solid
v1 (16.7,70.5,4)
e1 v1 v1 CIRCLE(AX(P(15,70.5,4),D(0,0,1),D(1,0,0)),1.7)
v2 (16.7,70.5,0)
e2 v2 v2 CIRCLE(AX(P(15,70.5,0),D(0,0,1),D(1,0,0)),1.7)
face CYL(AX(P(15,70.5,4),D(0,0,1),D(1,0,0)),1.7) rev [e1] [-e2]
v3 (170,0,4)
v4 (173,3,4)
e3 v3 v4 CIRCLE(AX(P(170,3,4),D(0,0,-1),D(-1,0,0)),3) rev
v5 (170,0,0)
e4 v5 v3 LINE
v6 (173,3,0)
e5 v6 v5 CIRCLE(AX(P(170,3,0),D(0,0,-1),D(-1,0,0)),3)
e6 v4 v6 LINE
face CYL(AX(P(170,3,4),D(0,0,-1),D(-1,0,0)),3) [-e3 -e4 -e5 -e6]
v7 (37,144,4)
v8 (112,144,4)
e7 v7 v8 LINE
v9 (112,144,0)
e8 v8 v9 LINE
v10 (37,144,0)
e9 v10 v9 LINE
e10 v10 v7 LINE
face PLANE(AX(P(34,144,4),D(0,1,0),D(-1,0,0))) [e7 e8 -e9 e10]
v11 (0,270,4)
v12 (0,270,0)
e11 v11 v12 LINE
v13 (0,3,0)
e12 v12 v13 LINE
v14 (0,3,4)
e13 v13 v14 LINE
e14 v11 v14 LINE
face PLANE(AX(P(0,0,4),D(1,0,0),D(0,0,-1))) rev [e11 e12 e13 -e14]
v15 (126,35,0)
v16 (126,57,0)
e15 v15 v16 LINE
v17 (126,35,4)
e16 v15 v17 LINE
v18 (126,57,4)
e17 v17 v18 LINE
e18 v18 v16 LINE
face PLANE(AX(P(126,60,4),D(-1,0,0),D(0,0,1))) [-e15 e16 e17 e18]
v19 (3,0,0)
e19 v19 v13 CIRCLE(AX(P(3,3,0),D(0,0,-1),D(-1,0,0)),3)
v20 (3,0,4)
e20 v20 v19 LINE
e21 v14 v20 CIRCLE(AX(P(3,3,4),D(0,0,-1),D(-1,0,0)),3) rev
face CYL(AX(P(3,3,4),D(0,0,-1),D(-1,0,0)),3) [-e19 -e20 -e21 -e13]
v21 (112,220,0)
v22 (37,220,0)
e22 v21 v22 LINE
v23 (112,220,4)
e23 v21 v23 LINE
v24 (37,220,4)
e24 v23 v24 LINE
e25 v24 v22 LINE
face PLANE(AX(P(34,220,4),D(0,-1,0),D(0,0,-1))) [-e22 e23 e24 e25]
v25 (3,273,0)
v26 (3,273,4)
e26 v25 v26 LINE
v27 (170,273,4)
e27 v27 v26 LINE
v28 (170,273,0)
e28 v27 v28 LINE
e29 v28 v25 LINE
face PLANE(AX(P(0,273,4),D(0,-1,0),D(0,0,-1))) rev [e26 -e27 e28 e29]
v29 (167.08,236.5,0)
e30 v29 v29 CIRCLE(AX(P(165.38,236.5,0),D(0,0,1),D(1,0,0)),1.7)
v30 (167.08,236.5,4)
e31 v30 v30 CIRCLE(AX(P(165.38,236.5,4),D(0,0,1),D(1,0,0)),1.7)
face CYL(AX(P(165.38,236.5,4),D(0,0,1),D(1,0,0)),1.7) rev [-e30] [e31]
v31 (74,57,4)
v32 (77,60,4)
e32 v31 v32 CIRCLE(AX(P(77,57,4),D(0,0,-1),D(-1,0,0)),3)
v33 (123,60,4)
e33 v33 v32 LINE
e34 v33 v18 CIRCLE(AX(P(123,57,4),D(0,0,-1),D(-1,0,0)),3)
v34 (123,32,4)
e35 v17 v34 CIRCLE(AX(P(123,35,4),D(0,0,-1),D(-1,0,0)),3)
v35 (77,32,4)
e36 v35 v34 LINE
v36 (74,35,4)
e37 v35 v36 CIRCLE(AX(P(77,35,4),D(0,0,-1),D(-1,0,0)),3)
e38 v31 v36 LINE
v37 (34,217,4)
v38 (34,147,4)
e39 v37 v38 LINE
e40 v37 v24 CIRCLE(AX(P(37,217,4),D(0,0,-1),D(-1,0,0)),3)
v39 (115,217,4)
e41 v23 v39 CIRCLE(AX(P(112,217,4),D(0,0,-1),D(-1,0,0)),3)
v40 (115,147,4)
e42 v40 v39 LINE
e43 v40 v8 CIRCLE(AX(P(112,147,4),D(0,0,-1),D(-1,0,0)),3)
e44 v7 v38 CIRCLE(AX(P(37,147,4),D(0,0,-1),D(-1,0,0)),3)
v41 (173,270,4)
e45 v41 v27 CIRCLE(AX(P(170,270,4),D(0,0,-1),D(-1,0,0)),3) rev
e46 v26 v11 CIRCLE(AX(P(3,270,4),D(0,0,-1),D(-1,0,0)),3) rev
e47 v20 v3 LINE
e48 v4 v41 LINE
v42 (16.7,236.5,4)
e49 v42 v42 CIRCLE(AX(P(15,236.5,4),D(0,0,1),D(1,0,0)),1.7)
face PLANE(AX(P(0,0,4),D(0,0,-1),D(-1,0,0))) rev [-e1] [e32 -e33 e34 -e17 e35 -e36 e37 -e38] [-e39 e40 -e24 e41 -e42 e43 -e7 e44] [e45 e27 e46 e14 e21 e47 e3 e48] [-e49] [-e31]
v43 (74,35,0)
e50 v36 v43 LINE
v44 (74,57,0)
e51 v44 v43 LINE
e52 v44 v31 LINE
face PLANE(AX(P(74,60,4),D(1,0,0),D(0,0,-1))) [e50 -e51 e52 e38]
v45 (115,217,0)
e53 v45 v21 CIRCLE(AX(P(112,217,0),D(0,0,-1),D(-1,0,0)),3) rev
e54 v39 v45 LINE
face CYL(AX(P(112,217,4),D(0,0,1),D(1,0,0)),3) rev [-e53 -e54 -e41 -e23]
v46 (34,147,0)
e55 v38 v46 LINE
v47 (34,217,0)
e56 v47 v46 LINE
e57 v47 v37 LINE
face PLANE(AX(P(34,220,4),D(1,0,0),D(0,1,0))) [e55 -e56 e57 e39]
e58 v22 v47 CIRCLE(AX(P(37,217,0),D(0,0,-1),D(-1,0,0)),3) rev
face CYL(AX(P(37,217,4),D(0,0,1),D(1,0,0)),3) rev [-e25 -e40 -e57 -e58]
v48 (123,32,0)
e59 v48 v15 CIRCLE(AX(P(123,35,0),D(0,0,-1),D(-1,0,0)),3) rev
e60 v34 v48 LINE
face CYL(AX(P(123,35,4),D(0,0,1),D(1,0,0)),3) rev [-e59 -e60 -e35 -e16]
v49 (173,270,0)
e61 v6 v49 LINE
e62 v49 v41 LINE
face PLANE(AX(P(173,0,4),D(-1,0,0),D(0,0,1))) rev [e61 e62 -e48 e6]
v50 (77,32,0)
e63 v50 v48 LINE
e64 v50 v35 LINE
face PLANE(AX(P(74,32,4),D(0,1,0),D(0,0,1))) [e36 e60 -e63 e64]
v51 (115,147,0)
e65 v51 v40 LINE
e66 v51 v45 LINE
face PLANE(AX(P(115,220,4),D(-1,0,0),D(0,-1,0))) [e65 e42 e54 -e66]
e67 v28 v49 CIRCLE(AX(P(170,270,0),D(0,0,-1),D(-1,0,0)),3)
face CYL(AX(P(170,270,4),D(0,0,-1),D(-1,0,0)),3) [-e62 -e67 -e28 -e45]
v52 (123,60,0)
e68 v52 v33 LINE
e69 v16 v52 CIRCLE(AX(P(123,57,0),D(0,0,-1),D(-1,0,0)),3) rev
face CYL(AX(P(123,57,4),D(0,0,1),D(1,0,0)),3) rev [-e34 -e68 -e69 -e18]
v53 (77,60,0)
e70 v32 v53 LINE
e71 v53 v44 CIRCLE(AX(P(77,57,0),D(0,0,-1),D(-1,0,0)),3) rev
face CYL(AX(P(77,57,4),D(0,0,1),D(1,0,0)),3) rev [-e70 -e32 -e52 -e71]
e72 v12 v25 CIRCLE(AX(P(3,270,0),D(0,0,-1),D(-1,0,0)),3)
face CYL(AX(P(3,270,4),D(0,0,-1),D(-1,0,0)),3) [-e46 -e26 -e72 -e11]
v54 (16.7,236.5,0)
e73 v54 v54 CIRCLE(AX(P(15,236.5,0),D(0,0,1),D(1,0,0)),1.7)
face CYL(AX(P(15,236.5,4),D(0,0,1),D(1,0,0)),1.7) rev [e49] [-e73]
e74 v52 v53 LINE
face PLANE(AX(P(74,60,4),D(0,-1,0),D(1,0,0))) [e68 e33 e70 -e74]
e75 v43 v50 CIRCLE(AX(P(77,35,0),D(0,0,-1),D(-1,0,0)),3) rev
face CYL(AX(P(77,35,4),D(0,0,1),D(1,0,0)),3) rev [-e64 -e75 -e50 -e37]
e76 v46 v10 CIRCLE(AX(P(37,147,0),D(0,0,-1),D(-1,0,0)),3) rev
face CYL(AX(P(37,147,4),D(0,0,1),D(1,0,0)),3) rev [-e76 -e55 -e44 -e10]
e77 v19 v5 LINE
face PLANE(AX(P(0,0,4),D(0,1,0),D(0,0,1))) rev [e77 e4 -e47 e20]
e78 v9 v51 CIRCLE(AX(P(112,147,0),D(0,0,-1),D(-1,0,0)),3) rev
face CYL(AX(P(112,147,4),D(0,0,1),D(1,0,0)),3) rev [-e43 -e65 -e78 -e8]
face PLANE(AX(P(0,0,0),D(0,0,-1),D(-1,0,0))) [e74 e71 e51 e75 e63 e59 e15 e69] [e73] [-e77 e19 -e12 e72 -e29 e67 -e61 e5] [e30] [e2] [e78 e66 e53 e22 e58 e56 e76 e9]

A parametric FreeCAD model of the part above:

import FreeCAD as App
import Part
import Sketcher
from FreeCAD import Vector
Q = App.Units.Quantity


def edges_at(feature, points):
    """Names of the edges that pass closest to the given points."""
    edges = feature.Shape.Edges
    near = lambda p: min(range(len(edges)), key=lambda i: edges[i].distToShape(Part.Vertex(*p))[0])
    return sorted({f"Edge{near(p) + 1}" for p in points})


def add_polygon(sketch, points):
    """Adds a closed chain of lines whose ends are joined by coincident constraints."""
    first, n = sketch.GeometryCount, len(points)
    for a, b in zip(points, points[1:] + points[:1]):
        sketch.addGeometry(Part.LineSegment(App.Vector(*a, 0), App.Vector(*b, 0)), False)
    for i in range(n):
        sketch.addConstraint(Sketcher.Constraint("Coincident", first + i, 2, first + (i + 1) % n, 1))

doc = App.newDocument("Part")
body = doc.addObject("PartDesign::Body", "Body")

# Sketch on XY plane
sketch1 = doc.addObject("Sketcher::SketchObject", "Sketch")
body.addObject(sketch1)
sketch1.AttachmentSupport = (doc.XY_Plane, [""])
sketch1.MapMode = "FlatFace"
add_polygon(sketch1, [(0, 273), (0, 0), (173, 0), (173, 273)])  # lines 0-3
sketch1.addGeometry(Part.Circle(Vector(15, 70.5, 0), Vector(0, 0, 1), 1.5), False)  # 4
add_polygon(sketch1, [(126, 32), (74, 32), (74, 60), (126, 60)])  # lines 5-8
add_polygon(sketch1, [(115, 144), (34, 144), (34, 220), (115, 220)])  # lines 9-12
sketch1.addGeometry(Part.Circle(Vector(15, 236.5, 0), Vector(0, 0, 1), 1.5), False)  # 13
sketch1.addGeometry(Part.Circle(Vector(165.4, 236.5, 0), Vector(0, 0, 1), 1.5), False)  # 14
sketch1.addConstraint(Sketcher.Constraint("Vertical", 0))
sketch1.addConstraint(Sketcher.Constraint("Horizontal", 1))
sketch1.addConstraint(Sketcher.Constraint("Vertical", 2))
sketch1.addConstraint(Sketcher.Constraint("Horizontal", 3))
sketch1.addConstraint(Sketcher.Constraint("Horizontal", 5))
sketch1.addConstraint(Sketcher.Constraint("Vertical", 6))
sketch1.addConstraint(Sketcher.Constraint("Horizontal", 7))
sketch1.addConstraint(Sketcher.Constraint("Vertical", 8))
sketch1.addConstraint(Sketcher.Constraint("Horizontal", 9))
sketch1.addConstraint(Sketcher.Constraint("Vertical", 10))
sketch1.addConstraint(Sketcher.Constraint("Horizontal", 11))
sketch1.addConstraint(Sketcher.Constraint("Vertical", 12))
sketch1.addConstraint(Sketcher.Constraint("Coincident", 0, 2, -1, 1))
sketch1.addConstraint(Sketcher.Constraint("Equal", 4, 13))
sketch1.addConstraint(Sketcher.Constraint("Equal", 13, 14))
sketch1.addConstraint(Sketcher.Constraint("Horizontal", 13, 3, 14, 3))
sketch1.addConstraint(Sketcher.Constraint("Vertical", 4, 3, 13, 3))
sketch1.addConstraint(Sketcher.Constraint("Diameter", 4, Q("3 mm")))
sketch1.addConstraint(Sketcher.Constraint("DistanceX", 1, 1, 1, 2, Q("173 mm")))
sketch1.addConstraint(Sketcher.Constraint("DistanceX", 5, 2, 5, 1, Q("52 mm")))
sketch1.addConstraint(Sketcher.Constraint("DistanceX", 9, 2, 9, 1, Q("81 mm")))
sketch1.addConstraint(Sketcher.Constraint("DistanceY", 0, 2, 0, 1, Q("273 mm")))
sketch1.addConstraint(Sketcher.Constraint("DistanceY", 6, 1, 6, 2, Q("28 mm")))
sketch1.addConstraint(Sketcher.Constraint("DistanceY", 10, 1, 10, 2, Q("76 mm")))
sketch1.addConstraint(Sketcher.Constraint("DistanceX", -1, 1, 4, 3, Q("15 mm")))
sketch1.addConstraint(Sketcher.Constraint("DistanceX", -1, 1, 5, 2, Q("74 mm")))
sketch1.addConstraint(Sketcher.Constraint("DistanceY", -1, 1, 5, 2, Q("32 mm")))
sketch1.addConstraint(Sketcher.Constraint("DistanceX", -1, 1, 9, 2, Q("34 mm")))
sketch1.addConstraint(Sketcher.Constraint("DistanceY", -1, 1, 9, 2, Q("144 mm")))
sketch1.addConstraint(Sketcher.Constraint("DistanceY", 4, 3, 13, 3, Q("166 mm")))
sketch1.addConstraint(Sketcher.Constraint("DistanceY", -1, 1, 4, 3, Q("70.5 mm")))
sketch1.addConstraint(Sketcher.Constraint("DistanceX", -1, 1, 14, 3, Q("165.38 mm")))
pad1 = doc.addObject("PartDesign::Pad", "Pad")
body.addObject(pad1)
pad1.Profile = sketch1
pad1.Length = 4

# Sketch on XY plane
sketch2 = doc.addObject("Sketcher::SketchObject", "Sketch001")
body.addObject(sketch2)
sketch2.AttachmentSupport = (doc.XY_Plane, [""])
sketch2.MapMode = "FlatFace"
sketch2.AttachmentOffset = App.Placement(Vector(0, 0, 4), App.Rotation())
sketch2.addGeometry(Part.Circle(Vector(15, 236.5, 0), Vector(0, 0, 1), 1.7), False)
sketch2.addGeometry(Part.Circle(Vector(15, 70.5, 0), Vector(0, 0, 1), 1.7), False)
sketch2.addGeometry(Part.Circle(Vector(165.4, 236.5, 0), Vector(0, 0, 1), 1.7), False)
sketch2.addConstraint(Sketcher.Constraint("Equal", 0, 1))
sketch2.addConstraint(Sketcher.Constraint("Equal", 1, 2))
sketch2.addConstraint(Sketcher.Constraint("Horizontal", 0, 3, 2, 3))
sketch2.addConstraint(Sketcher.Constraint("Vertical", 0, 3, 1, 3))
sketch2.addConstraint(Sketcher.Constraint("Diameter", 0, Q("3.4 mm")))
sketch2.addConstraint(Sketcher.Constraint("DistanceX", -1, 1, 0, 3, Q("15 mm")))
sketch2.addConstraint(Sketcher.Constraint("DistanceY", 1, 3, 0, 3, Q("166 mm")))
sketch2.addConstraint(Sketcher.Constraint("DistanceY", -1, 1, 0, 3, Q("236.5 mm")))
sketch2.addConstraint(Sketcher.Constraint("DistanceX", -1, 1, 2, 3, Q("165.38 mm")))
doc.recompute()
hole = doc.addObject("PartDesign::Hole", "Hole")
body.addObject(hole)
hole.Profile = sketch2
hole.ThreadType = "None"
hole.Diameter = 3.4
hole.DepthType = "ThroughAll"
doc.recompute()

fillet = doc.addObject("PartDesign::Fillet", "Fillet")
body.addObject(fillet)
fillet.Base = (hole, edges_at(hole, [
    (74, 60, 2),
    (74, 32, 2),
    (126, 32, 2),
    (126, 60, 2),
    (34, 220, 2),
    (34, 144, 2),
    (115, 144, 2),
    (115, 220, 2),
    (0, 273, 2),
    (173, 273, 2),
    (173, 0, 2),
    (0, 0, 2),
]))
fillet.Radius = 3

doc.recompute()
